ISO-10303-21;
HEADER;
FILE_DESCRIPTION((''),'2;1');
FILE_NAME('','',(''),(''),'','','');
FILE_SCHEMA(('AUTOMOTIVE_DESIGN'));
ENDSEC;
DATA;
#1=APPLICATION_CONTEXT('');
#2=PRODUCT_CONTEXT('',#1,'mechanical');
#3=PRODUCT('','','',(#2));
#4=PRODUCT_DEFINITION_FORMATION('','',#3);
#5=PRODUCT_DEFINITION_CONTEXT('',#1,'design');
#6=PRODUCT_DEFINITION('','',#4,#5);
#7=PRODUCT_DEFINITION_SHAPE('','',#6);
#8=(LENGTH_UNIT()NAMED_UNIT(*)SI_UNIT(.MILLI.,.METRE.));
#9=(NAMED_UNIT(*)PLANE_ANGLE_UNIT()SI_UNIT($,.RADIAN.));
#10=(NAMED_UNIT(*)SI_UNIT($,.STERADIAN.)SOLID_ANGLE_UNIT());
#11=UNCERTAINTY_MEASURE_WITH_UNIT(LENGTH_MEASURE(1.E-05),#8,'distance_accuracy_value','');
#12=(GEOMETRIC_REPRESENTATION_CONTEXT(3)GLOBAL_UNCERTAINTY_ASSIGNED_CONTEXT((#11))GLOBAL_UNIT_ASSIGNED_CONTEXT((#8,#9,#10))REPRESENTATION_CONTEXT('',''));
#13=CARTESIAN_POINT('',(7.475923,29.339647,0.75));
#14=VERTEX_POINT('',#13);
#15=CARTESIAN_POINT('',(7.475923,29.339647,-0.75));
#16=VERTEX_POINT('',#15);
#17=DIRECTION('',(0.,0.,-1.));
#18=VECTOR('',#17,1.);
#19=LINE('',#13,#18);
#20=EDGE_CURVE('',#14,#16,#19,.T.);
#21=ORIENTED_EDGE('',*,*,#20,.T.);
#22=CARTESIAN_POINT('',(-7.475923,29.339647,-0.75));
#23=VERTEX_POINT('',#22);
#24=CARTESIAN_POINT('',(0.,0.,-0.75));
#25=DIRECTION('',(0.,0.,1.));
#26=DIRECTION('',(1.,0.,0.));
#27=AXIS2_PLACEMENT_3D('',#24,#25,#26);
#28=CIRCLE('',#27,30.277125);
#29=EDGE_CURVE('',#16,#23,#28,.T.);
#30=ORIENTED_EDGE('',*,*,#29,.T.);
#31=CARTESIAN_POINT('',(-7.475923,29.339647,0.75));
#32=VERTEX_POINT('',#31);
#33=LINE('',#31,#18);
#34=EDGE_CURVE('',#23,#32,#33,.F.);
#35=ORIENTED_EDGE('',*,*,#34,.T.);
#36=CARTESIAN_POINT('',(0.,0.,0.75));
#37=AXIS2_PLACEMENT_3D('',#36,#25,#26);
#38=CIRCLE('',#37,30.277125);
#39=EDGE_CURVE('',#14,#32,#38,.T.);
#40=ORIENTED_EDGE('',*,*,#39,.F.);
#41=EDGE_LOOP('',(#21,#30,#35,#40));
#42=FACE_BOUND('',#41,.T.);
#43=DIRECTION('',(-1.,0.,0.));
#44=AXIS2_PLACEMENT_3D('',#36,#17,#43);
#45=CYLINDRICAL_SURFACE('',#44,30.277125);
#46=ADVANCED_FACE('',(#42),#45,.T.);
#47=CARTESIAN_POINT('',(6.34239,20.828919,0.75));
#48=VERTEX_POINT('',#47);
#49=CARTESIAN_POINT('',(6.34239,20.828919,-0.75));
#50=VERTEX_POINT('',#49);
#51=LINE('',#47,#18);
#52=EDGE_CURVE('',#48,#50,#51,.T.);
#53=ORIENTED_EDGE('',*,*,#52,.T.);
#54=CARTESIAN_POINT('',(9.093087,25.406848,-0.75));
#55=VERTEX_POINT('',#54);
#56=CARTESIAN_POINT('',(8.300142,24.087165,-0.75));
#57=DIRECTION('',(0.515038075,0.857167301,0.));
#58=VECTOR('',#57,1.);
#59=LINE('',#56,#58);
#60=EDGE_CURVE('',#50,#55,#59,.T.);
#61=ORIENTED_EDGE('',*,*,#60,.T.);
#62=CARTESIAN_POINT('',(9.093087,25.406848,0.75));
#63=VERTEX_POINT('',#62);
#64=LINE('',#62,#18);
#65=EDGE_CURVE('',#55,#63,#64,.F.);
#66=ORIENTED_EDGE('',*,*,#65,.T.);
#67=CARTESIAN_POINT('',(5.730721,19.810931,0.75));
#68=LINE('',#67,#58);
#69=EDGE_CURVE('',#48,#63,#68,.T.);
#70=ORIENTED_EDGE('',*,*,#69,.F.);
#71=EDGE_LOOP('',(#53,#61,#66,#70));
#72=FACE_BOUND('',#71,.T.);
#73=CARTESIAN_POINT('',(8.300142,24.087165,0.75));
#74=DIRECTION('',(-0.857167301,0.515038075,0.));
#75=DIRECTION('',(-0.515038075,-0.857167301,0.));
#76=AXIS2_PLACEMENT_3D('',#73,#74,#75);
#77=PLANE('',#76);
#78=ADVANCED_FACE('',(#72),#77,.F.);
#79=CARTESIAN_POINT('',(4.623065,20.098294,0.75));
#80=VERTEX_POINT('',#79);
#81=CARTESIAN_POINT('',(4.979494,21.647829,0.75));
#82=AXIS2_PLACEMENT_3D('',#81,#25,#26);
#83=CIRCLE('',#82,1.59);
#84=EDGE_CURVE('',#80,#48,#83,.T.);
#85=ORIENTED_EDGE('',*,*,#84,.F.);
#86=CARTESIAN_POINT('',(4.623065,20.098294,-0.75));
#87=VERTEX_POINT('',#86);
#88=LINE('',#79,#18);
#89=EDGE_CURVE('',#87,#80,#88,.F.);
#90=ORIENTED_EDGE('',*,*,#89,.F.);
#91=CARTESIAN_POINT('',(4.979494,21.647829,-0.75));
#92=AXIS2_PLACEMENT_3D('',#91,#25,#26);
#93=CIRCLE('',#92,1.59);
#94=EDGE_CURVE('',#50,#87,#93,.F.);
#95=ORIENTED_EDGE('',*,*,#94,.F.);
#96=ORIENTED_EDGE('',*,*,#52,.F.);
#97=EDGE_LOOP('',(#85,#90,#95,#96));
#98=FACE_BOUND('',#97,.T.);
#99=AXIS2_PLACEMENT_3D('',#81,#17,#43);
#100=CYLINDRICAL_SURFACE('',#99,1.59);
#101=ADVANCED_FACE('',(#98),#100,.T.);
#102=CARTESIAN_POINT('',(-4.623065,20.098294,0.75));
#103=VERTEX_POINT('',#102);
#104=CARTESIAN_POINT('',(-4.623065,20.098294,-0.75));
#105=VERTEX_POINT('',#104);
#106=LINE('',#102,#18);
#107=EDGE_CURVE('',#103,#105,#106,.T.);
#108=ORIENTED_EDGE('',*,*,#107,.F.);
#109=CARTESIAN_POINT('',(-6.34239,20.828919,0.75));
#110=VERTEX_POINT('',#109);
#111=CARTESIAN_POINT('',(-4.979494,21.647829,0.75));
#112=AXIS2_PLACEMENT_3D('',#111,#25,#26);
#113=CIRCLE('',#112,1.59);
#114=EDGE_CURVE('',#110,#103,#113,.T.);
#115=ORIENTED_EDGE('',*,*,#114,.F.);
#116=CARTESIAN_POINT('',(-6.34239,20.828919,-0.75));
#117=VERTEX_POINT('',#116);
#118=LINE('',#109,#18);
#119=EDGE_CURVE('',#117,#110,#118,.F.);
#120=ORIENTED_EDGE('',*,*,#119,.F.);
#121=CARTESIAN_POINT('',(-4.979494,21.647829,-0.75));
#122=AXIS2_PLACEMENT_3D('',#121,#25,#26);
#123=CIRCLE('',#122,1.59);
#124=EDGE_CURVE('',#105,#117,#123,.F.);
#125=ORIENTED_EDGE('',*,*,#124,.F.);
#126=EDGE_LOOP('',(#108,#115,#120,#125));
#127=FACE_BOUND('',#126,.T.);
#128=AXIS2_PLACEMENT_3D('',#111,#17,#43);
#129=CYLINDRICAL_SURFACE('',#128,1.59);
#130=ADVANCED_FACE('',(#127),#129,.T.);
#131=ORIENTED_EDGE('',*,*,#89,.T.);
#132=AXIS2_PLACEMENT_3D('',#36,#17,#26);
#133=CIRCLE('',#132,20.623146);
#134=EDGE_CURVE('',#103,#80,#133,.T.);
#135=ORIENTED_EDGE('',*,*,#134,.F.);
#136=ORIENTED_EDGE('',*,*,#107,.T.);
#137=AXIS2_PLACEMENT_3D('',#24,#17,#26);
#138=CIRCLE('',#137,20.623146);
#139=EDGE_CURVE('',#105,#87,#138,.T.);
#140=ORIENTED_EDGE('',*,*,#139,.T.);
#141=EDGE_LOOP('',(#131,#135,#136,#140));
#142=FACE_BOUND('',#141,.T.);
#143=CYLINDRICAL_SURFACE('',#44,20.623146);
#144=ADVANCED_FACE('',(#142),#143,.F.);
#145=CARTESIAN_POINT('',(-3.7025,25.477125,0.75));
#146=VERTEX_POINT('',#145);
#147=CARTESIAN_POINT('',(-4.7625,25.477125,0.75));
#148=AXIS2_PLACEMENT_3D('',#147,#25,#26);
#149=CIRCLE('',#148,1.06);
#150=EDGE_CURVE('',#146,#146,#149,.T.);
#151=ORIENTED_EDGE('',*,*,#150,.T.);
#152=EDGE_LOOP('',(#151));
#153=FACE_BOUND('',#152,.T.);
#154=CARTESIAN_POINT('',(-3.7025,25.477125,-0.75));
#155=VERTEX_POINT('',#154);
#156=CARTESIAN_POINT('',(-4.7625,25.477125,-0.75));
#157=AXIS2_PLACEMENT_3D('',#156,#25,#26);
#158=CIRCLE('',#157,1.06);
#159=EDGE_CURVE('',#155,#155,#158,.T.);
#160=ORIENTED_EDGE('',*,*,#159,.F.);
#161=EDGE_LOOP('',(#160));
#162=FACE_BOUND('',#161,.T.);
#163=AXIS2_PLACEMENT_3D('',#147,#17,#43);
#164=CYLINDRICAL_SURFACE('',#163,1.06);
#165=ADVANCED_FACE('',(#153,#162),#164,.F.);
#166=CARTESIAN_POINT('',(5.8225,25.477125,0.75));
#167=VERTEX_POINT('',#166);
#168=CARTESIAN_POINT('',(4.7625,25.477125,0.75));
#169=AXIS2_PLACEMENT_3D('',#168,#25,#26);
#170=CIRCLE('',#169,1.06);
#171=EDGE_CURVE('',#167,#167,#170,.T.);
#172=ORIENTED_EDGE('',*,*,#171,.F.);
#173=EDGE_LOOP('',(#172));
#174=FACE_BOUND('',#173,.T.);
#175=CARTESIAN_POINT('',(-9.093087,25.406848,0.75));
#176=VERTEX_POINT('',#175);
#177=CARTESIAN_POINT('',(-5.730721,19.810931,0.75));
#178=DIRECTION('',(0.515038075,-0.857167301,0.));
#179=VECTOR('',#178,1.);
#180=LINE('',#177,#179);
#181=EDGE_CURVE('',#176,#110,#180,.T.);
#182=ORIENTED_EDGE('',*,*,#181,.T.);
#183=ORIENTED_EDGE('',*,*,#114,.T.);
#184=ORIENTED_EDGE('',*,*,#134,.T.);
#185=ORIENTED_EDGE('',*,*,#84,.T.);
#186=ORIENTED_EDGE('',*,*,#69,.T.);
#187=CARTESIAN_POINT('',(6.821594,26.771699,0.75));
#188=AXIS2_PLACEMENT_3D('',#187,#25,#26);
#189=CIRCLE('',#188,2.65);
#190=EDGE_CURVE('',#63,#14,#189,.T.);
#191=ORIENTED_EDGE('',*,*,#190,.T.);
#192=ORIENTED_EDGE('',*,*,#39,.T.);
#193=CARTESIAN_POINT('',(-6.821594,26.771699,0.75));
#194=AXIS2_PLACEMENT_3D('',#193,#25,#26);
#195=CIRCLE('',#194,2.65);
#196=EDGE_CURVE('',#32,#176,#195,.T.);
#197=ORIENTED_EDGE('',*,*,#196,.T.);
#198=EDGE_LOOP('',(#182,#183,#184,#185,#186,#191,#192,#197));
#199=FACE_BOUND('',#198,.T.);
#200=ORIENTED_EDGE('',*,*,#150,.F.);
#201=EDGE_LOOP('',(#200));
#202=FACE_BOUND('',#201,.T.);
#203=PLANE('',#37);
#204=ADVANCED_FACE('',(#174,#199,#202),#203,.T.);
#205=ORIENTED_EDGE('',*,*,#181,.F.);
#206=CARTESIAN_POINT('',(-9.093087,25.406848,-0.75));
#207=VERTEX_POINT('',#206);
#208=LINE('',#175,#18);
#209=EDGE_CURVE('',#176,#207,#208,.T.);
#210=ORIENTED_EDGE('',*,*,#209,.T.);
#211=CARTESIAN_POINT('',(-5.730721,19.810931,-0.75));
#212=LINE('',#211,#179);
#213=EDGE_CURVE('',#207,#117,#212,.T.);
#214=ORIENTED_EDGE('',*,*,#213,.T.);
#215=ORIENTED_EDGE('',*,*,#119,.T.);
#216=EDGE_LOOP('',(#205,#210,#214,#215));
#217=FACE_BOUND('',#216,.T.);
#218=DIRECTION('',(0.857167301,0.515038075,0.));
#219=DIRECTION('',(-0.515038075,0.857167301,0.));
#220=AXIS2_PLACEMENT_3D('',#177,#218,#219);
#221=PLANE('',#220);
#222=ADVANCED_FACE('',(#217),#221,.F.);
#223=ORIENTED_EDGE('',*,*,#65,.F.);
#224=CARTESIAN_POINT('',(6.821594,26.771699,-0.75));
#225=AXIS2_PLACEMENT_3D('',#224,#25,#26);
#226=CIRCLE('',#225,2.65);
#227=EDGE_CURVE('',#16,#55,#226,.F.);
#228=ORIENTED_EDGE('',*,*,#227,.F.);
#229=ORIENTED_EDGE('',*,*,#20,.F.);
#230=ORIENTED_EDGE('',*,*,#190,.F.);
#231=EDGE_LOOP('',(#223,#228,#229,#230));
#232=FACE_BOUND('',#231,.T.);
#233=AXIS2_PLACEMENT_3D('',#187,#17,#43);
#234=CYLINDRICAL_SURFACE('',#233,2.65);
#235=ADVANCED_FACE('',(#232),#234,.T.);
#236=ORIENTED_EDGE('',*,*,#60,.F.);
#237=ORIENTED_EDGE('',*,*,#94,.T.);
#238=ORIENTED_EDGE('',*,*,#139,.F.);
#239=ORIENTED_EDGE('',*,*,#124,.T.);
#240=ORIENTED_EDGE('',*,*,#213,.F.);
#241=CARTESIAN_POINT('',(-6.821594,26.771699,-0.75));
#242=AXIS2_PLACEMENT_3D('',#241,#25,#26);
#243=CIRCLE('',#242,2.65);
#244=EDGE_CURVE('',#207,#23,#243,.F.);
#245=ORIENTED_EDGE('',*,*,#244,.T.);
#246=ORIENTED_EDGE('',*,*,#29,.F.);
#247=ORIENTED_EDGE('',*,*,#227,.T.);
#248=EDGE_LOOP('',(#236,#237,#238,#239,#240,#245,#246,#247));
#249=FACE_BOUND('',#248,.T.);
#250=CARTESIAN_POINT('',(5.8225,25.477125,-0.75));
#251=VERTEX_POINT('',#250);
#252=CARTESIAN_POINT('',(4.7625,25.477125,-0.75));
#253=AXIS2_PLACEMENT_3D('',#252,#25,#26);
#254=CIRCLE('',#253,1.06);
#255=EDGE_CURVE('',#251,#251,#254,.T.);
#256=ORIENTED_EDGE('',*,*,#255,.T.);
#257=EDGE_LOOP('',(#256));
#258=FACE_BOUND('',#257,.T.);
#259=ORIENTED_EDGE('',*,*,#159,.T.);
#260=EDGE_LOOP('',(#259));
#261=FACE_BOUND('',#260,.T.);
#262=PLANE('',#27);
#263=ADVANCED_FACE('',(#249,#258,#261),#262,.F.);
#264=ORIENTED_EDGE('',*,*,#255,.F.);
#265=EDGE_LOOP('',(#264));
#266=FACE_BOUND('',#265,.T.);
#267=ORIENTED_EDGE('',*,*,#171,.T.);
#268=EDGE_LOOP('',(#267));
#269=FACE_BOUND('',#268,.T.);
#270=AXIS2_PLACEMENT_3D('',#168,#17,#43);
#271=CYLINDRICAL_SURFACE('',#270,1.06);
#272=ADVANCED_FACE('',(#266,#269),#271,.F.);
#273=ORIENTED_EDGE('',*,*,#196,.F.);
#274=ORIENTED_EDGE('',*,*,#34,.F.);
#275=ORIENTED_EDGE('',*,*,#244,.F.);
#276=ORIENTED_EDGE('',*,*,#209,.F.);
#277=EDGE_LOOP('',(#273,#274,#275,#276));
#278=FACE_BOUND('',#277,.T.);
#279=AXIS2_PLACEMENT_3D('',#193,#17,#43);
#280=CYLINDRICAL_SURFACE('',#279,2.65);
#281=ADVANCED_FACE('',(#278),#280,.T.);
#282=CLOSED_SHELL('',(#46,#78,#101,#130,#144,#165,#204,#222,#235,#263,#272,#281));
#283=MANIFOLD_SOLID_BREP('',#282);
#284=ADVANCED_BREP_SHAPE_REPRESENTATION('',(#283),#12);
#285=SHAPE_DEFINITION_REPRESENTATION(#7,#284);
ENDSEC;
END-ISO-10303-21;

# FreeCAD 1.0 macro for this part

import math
import FreeCAD as App
import Part
import Sketcher
from FreeCAD import Vector
Q = App.Units.Quantity


def edges_at(feature, points):
    """Names of the edges that pass closest to the given points."""
    edges = feature.Shape.Edges
    near = lambda p: min(range(len(edges)), key=lambda i: edges[i].distToShape(Part.Vertex(*p))[0])
    return sorted({f"Edge{near(p) + 1}" for p in points})

doc = App.newDocument("Part")
body = doc.addObject("PartDesign::Body", "Body")

sketch1 = doc.addObject("Sketcher::SketchObject", "Sketch")
body.addObject(sketch1)
sketch1.AttachmentSupport = (doc.XY_Plane, [""])
sketch1.MapMode = "FlatFace"
sketch1.addGeometry(Part.LineSegment(Vector(5.730721, 19.810931, 0), Vector(8.300142, 24.087165, 0)), False)
sketch1.addGeometry(Part.LineSegment(Vector(8.300142, 24.087165, 0), Vector(10.818461, 28.278352, 0)), False)
sketch1.addGeometry(Part.ArcOfCircle(Part.Circle(Vector(0, 0, 0), Vector(0, 0, 1), 30.277125), math.radians(69.064628), math.radians(110.935372)), False)
sketch1.addGeometry(Part.LineSegment(Vector(-10.818461, 28.278352, 0), Vector(-5.730721, 19.810931, 0)), False)
sketch1.addGeometry(Part.ArcOfCircle(Part.Circle(Vector(0, 0, 0), Vector(0, 0, 1), 20.623146), math.radians(73.866395), math.radians(106.133605)), False)
sketch1.addGeometry(Part.Circle(Vector(-4.7625, 25.477125, 0), Vector(0, 0, 1), 1.06), False)
sketch1.addGeometry(Part.Circle(Vector(4.7625, 25.477125, 0), Vector(0, 0, 1), 1.06), False)
sketch1.addConstraint(Sketcher.Constraint("Coincident", 0, 2, 1, 1))
sketch1.addConstraint(Sketcher.Constraint("Coincident", 1, 2, 2, 1))
sketch1.addConstraint(Sketcher.Constraint("Coincident", 2, 2, 3, 1))
sketch1.addConstraint(Sketcher.Constraint("Coincident", 3, 2, 4, 2))
sketch1.addConstraint(Sketcher.Constraint("Coincident", 4, 1, 0, 1))
sketch1.addConstraint(Sketcher.Constraint("Coincident", 2, 3, -1, 1))
sketch1.addConstraint(Sketcher.Constraint("Coincident", 4, 3, -1, 1))
sketch1.addConstraint(Sketcher.Constraint("Equal", 5, 6))
sketch1.addConstraint(Sketcher.Constraint("Symmetric", 5, 3, 6, 3, -2))
sketch1.addConstraint(Sketcher.Constraint("Parallel", 0, 1))
sketch1.addConstraint(Sketcher.Constraint("Horizontal", 1, 2, 2, 2))
sketch1.addConstraint(Sketcher.Constraint("Horizontal", 3, 2, 4, 1))
sketch1.addConstraint(Sketcher.Constraint("Diameter", 5, Q("2.12 mm")))
sketch1.addConstraint(Sketcher.Constraint("Angle", 0, Q("59 deg")))
sketch1.addConstraint(Sketcher.Constraint("Radius", 2, Q("30.277125 mm")))
sketch1.addConstraint(Sketcher.Constraint("Radius", 4, Q("20.623146 mm")))
sketch1.addConstraint(Sketcher.Constraint("DistanceX", 5, 3, 6, 3, Q("9.525 mm")))
sketch1.addConstraint(Sketcher.Constraint("Distance", 1, Q("4.889578 mm")))
sketch1.addConstraint(Sketcher.Constraint("DistanceX", -1, 1, 0, 2, Q("8.300142 mm")))
sketch1.addConstraint(Sketcher.Constraint("DistanceY", 0, 2, 6, 3, Q("1.389959 mm")))
pad1 = doc.addObject("PartDesign::Pad", "Pad")
body.addObject(pad1)
pad1.Profile = sketch1
pad1.Length = 1.5
pad1.Midplane = True
doc.recompute()

fillet = doc.addObject("PartDesign::Fillet", "Fillet")
body.addObject(fillet)
fillet.Base = (pad1, edges_at(pad1, [(-10.818, 28.278, 0), (10.818, 28.278, 0)]))
fillet.Radius = 2.65
doc.recompute()

fillet2 = doc.addObject("PartDesign::Fillet", "Fillet001")
body.addObject(fillet2)
fillet2.Base = (fillet, edges_at(fillet, [(-5.731, 19.811, 0), (5.731, 19.811, 0)]))
fillet2.Radius = 1.59

doc.recompute()
